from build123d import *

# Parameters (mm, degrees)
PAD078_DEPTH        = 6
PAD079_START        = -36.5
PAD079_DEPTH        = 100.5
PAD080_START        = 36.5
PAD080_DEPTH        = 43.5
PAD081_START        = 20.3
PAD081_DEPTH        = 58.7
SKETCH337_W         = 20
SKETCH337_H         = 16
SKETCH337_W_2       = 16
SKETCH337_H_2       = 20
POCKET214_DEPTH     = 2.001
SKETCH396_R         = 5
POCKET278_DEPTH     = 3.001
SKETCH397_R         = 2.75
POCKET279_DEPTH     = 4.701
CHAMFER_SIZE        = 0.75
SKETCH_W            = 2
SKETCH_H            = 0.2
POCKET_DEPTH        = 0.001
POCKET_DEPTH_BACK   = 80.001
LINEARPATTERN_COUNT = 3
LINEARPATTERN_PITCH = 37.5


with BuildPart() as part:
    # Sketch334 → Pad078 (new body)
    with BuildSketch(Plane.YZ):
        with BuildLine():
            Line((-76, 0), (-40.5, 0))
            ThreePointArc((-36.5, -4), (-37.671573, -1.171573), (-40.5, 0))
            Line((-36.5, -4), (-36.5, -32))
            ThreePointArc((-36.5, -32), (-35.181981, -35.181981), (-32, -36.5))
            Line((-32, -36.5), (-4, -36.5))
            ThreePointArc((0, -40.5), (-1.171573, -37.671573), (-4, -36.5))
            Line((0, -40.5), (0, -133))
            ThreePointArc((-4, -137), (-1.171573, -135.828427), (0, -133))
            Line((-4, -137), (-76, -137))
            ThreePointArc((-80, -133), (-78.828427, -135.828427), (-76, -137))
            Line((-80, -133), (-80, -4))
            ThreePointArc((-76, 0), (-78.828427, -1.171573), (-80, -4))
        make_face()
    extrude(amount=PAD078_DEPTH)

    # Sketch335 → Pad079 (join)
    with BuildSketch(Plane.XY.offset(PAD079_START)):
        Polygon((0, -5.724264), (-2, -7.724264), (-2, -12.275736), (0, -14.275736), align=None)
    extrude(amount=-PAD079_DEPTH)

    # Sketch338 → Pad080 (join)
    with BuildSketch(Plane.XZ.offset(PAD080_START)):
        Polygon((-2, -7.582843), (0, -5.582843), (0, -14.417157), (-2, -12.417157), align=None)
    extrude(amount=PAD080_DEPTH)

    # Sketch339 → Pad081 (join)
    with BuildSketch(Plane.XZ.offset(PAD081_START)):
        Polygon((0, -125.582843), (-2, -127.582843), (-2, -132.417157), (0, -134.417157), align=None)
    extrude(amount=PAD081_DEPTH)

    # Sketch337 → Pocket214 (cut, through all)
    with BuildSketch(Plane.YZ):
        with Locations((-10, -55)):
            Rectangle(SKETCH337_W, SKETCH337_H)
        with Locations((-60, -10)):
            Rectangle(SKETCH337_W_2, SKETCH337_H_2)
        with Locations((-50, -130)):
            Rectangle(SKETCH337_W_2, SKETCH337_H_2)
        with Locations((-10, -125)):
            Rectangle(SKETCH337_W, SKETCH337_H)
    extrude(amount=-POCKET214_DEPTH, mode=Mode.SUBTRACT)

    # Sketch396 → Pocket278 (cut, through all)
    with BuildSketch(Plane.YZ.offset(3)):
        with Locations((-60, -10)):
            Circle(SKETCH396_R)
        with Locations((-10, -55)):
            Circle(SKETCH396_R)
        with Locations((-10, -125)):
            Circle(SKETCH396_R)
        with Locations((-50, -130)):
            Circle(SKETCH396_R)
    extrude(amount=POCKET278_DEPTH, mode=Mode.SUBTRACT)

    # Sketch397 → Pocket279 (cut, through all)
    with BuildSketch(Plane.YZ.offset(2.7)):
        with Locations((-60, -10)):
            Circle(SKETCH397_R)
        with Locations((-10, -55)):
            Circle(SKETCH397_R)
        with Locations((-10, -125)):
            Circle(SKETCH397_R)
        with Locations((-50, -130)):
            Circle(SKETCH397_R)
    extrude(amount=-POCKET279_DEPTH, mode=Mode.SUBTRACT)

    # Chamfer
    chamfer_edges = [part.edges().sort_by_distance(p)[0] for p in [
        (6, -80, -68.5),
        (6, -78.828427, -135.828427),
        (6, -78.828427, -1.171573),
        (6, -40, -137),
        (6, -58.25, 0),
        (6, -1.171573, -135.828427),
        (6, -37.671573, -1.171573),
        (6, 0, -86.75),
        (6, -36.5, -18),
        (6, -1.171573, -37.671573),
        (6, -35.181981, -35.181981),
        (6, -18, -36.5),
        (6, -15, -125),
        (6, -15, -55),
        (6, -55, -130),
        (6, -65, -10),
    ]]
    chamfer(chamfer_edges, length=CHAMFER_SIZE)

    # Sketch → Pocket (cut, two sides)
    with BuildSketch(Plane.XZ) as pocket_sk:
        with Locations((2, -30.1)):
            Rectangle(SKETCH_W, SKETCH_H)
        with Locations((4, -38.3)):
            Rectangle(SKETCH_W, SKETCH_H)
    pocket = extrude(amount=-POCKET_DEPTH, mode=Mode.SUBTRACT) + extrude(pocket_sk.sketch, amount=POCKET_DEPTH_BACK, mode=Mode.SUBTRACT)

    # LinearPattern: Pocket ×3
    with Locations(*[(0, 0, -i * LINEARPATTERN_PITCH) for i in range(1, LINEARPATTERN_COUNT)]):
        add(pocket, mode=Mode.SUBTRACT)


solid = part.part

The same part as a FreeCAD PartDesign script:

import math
import FreeCAD as App
import Part
import Sketcher

V = App.Vector
Q = App.Units.Quantity


def edges_at(feature, points):
    """Names of the edges that pass closest to the given points."""
    edges = feature.Shape.Edges
    near = lambda p: min(range(len(edges)), key=lambda i: edges[i].distToShape(Part.Vertex(*p))[0])
    return sorted({f"Edge{near(p) + 1}" for p in points})


def add_polygon(sketch, points):
    """Adds a closed chain of lines whose ends are joined by coincident constraints."""
    first, n = sketch.GeometryCount, len(points)
    for a, b in zip(points, points[1:] + points[:1]):
        sketch.addGeometry(Part.LineSegment(App.Vector(*a, 0), App.Vector(*b, 0)), False)
    for i in range(n):
        sketch.addConstraint(Sketcher.Constraint("Coincident", first + i, 2, first + (i + 1) % n, 1))

doc = App.newDocument("Part")
body = doc.addObject("PartDesign::Body", "Body")

# Sketch on YZ plane
sketch1 = body.newObject("Sketcher::SketchObject", "Sketch")
sketch1.AttachmentSupport = (doc.getObject("YZ_Plane"), [""])
sketch1.MapMode = "FlatFace"
sketch1.addGeometry(Part.LineSegment(V(-40.5, 0, 0), V(-76, 0, 0)), False)
sketch1.addGeometry(Part.ArcOfCircle(Part.Circle(V(-76, -4, 0), V(0, 0, 1), 4), math.radians(90.000006), math.radians(179.999994)), False)
sketch1.addGeometry(Part.LineSegment(V(-80, -4, 0), V(-80, -133, 0)), False)
sketch1.addGeometry(Part.ArcOfCircle(Part.Circle(V(-76, -133, 0), V(0, 0, 1), 4), math.radians(-179.999994), math.radians(-90.000006)), False)
sketch1.addGeometry(Part.LineSegment(V(-76, -137, 0), V(-4, -137, 0)), False)
sketch1.addGeometry(Part.ArcOfCircle(Part.Circle(V(-4, -133, 0), V(0, 0, 1), 4), math.radians(-89.999994), math.radians(-0.000006)), False)
sketch1.addGeometry(Part.LineSegment(V(0, -133, 0), V(0, -40.5, 0)), False)
sketch1.addGeometry(Part.ArcOfCircle(Part.Circle(V(-4, -40.5, 0), V(0, 0, 1), 4), math.radians(0.000006), math.radians(89.999994)), False)
sketch1.addGeometry(Part.LineSegment(V(-4, -36.5, 0), V(-32, -36.5, 0)), False)
sketch1.addGeometry(Part.ArcOfCircle(Part.Circle(V(-32.000002, -32.000002, 0), V(0, 0, 1), 4.499998), math.radians(179.999979), math.radians(270.000021)), False)
sketch1.addGeometry(Part.LineSegment(V(-36.5, -32, 0), V(-36.5, -4, 0)), False)
sketch1.addGeometry(Part.ArcOfCircle(Part.Circle(V(-40.5, -4, 0), V(0, 0, 1), 4), math.radians(0.000006), math.radians(89.999994)), False)
sketch1.addConstraint(Sketcher.Constraint("Tangent", 0, 2, 1, 1))
sketch1.addConstraint(Sketcher.Constraint("Tangent", 1, 2, 2, 1))
sketch1.addConstraint(Sketcher.Constraint("Tangent", 2, 2, 3, 1))
sketch1.addConstraint(Sketcher.Constraint("Tangent", 3, 2, 4, 1))
sketch1.addConstraint(Sketcher.Constraint("Tangent", 4, 2, 5, 1))
sketch1.addConstraint(Sketcher.Constraint("Tangent", 5, 2, 6, 1))
sketch1.addConstraint(Sketcher.Constraint("Tangent", 6, 2, 7, 1))
sketch1.addConstraint(Sketcher.Constraint("Tangent", 7, 2, 8, 1))
sketch1.addConstraint(Sketcher.Constraint("Tangent", 8, 2, 9, 2))
sketch1.addConstraint(Sketcher.Constraint("Tangent", 9, 1, 10, 1))
sketch1.addConstraint(Sketcher.Constraint("Tangent", 10, 2, 11, 1))
sketch1.addConstraint(Sketcher.Constraint("Tangent", 11, 2, 0, 1))
sketch1.addConstraint(Sketcher.Constraint("Horizontal", 0))
sketch1.addConstraint(Sketcher.Constraint("Vertical", 2))
sketch1.addConstraint(Sketcher.Constraint("Horizontal", 4))
sketch1.addConstraint(Sketcher.Constraint("Vertical", 6))
sketch1.addConstraint(Sketcher.Constraint("Horizontal", 8))
sketch1.addConstraint(Sketcher.Constraint("Vertical", 10))
sketch1.addConstraint(Sketcher.Constraint("Equal", 1, 3))
sketch1.addConstraint(Sketcher.Constraint("Equal", 3, 5))
sketch1.addConstraint(Sketcher.Constraint("Equal", 5, 7))
sketch1.addConstraint(Sketcher.Constraint("Equal", 7, 11))
sketch1.addConstraint(Sketcher.Constraint("PointOnObject", 0, 2, -1))
sketch1.addConstraint(Sketcher.Constraint("PointOnObject", 5, 2, -2))
sketch1.addConstraint(Sketcher.Constraint("Equal", 8, 10))
sketch1.addConstraint(Sketcher.Constraint("Radius", 1, Q("4 mm")))
sketch1.addConstraint(Sketcher.Constraint("Radius", 9, Q("4.499998 mm")))
sketch1.addConstraint(Sketcher.Constraint("DistanceX", 4, 1, 4, 2, Q("72 mm")))
sketch1.addConstraint(Sketcher.Constraint("DistanceX", 8, 2, 8, 1, Q("28 mm")))
sketch1.addConstraint(Sketcher.Constraint("DistanceY", 2, 2, 2, 1, Q("129 mm")))
pad1 = body.newObject("PartDesign::Pad", "Pad")
pad1.Profile = sketch1
pad1.Length = 6

# Sketch on XY plane
sketch2 = body.newObject("Sketcher::SketchObject", "Sketch001")
sketch2.AttachmentSupport = (doc.getObject("XY_Plane"), [""])
sketch2.MapMode = "FlatFace"
sketch2.AttachmentOffset = App.Placement(V(0, 0, -36.5), App.Rotation())
add_polygon(sketch2, [(0, -5.724264), (-2, -7.724264), (-2, -12.275736), (0, -14.275736)])  # lines 0-3
sketch2.addConstraint(Sketcher.Constraint("Vertical", 1))
sketch2.addConstraint(Sketcher.Constraint("Vertical", 3))
sketch2.addConstraint(Sketcher.Constraint("PointOnObject", 2, 2, -2))
sketch2.addConstraint(Sketcher.Constraint("Perpendicular", 0, 2))
sketch2.addConstraint(Sketcher.Constraint("Equal", 0, 2))
sketch2.addConstraint(Sketcher.Constraint("DistanceX", 0, 2, -1, 1, Q("2 mm")))
sketch2.addConstraint(Sketcher.Constraint("DistanceY", 1, 2, 1, 1, Q("4.551472 mm")))
sketch2.addConstraint(Sketcher.Constraint("DistanceY", 0, 2, -1, 1, Q("7.724264 mm")))
pad2 = body.newObject("PartDesign::Pad", "Pad001")
pad2.Profile = sketch2
pad2.Length = 100.5
pad2.Reversed = True

# Sketch on XZ plane
sketch3 = body.newObject("Sketcher::SketchObject", "Sketch002")
sketch3.AttachmentSupport = (doc.getObject("XZ_Plane"), [""])
sketch3.MapMode = "FlatFace"
sketch3.AttachmentOffset = App.Placement(V(0, 0, 36.5), App.Rotation())
add_polygon(sketch3, [(0, -5.582843), (-2, -7.582843), (-2, -12.417157), (0, -14.417157)])  # lines 0-3
sketch3.addConstraint(Sketcher.Constraint("Vertical", 1))
sketch3.addConstraint(Sketcher.Constraint("Vertical", 3))
sketch3.addConstraint(Sketcher.Constraint("PointOnObject", 2, 2, -2))
sketch3.addConstraint(Sketcher.Constraint("Perpendicular", 0, 2))
sketch3.addConstraint(Sketcher.Constraint("Equal", 0, 2))
sketch3.addConstraint(Sketcher.Constraint("DistanceX", 0, 2, -1, 1, Q("2 mm")))
sketch3.addConstraint(Sketcher.Constraint("DistanceY", 1, 2, 1, 1, Q("4.834314 mm")))
sketch3.addConstraint(Sketcher.Constraint("DistanceY", 0, 2, -1, 1, Q("7.582843 mm")))
pad3 = body.newObject("PartDesign::Pad", "Pad002")
pad3.Profile = sketch3
pad3.Length = 43.5

# Sketch on XZ plane
sketch4 = body.newObject("Sketcher::SketchObject", "Sketch003")
sketch4.AttachmentSupport = (doc.getObject("XZ_Plane"), [""])
sketch4.MapMode = "FlatFace"
sketch4.AttachmentOffset = App.Placement(V(0, 0, 20.3), App.Rotation())
add_polygon(sketch4, [(0, -125.582843), (-2, -127.582843), (-2, -132.417157), (0, -134.417157)])  # lines 0-3
sketch4.addConstraint(Sketcher.Constraint("Vertical", 1))
sketch4.addConstraint(Sketcher.Constraint("Vertical", 3))
sketch4.addConstraint(Sketcher.Constraint("PointOnObject", 2, 2, -2))
sketch4.addConstraint(Sketcher.Constraint("Perpendicular", 0, 2))
sketch4.addConstraint(Sketcher.Constraint("Equal", 0, 2))
sketch4.addConstraint(Sketcher.Constraint("DistanceX", 0, 2, -1, 1, Q("2 mm")))
sketch4.addConstraint(Sketcher.Constraint("DistanceY", 1, 2, 1, 1, Q("4.834314 mm")))
sketch4.addConstraint(Sketcher.Constraint("DistanceY", 0, 2, -1, 1, Q("127.582843 mm")))
pad4 = body.newObject("PartDesign::Pad", "Pad003")
pad4.Profile = sketch4
pad4.Length = 58.7

# Sketch on YZ plane
sketch5 = body.newObject("Sketcher::SketchObject", "Sketch004")
sketch5.AttachmentSupport = (doc.getObject("YZ_Plane"), [""])
sketch5.MapMode = "FlatFace"
add_polygon(sketch5, [(-20, -47), (-20, -63), (0, -63), (0, -47)])  # lines 0-3
add_polygon(sketch5, [(-68, 0), (-68, -20), (-52, -20), (-52, 0)])  # lines 4-7
add_polygon(sketch5, [(-58, -120), (-58, -140), (-42, -140), (-42, -120)])  # lines 8-11
add_polygon(sketch5, [(-20, -117), (-20, -133), (0, -133), (0, -117)])  # lines 12-15
sketch5.addConstraint(Sketcher.Constraint("Vertical", 0))
sketch5.addConstraint(Sketcher.Constraint("Horizontal", 1))
sketch5.addConstraint(Sketcher.Constraint("Vertical", 2))
sketch5.addConstraint(Sketcher.Constraint("Horizontal", 3))
sketch5.addConstraint(Sketcher.Constraint("Vertical", 4))
sketch5.addConstraint(Sketcher.Constraint("Horizontal", 5))
sketch5.addConstraint(Sketcher.Constraint("Vertical", 6))
sketch5.addConstraint(Sketcher.Constraint("Horizontal", 7))
sketch5.addConstraint(Sketcher.Constraint("Vertical", 8))
sketch5.addConstraint(Sketcher.Constraint("Horizontal", 9))
sketch5.addConstraint(Sketcher.Constraint("Vertical", 10))
sketch5.addConstraint(Sketcher.Constraint("Horizontal", 11))
sketch5.addConstraint(Sketcher.Constraint("Vertical", 12))
sketch5.addConstraint(Sketcher.Constraint("Horizontal", 13))
sketch5.addConstraint(Sketcher.Constraint("Vertical", 14))
sketch5.addConstraint(Sketcher.Constraint("Horizontal", 15))
sketch5.addConstraint(Sketcher.Constraint("PointOnObject", 1, 2, -2))
sketch5.addConstraint(Sketcher.Constraint("PointOnObject", 6, 2, -1))
sketch5.addConstraint(Sketcher.Constraint("PointOnObject", 13, 2, -2))
sketch5.addConstraint(Sketcher.Constraint("Vertical", 3, 2, 12, 2))
sketch5.addConstraint(Sketcher.Constraint("Equal", 7, 9))
sketch5.addConstraint(Sketcher.Constraint("Equal", 11, 0))
sketch5.addConstraint(Sketcher.Constraint("Equal", 15, 4))
sketch5.addConstraint(Sketcher.Constraint("Equal", 6, 8))
sketch5.addConstraint(Sketcher.Constraint("Equal", 2, 12))
sketch5.addConstraint(Sketcher.Constraint("DistanceX", 1, 1, 1, 2, Q("20 mm")))
sketch5.addConstraint(Sketcher.Constraint("DistanceX", 5, 1, 5, 2, Q("16 mm")))
sketch5.addConstraint(Sketcher.Constraint("DistanceY", 0, 2, -1, 1, Q("63 mm")))
sketch5.addConstraint(Sketcher.Constraint("DistanceX", 4, 2, -1, 1, Q("68 mm")))
sketch5.addConstraint(Sketcher.Constraint("DistanceX", 8, 2, -1, 1, Q("58 mm")))
sketch5.addConstraint(Sketcher.Constraint("DistanceY", 8, 2, -1, 1, Q("140 mm")))
sketch5.addConstraint(Sketcher.Constraint("DistanceY", 12, 2, -1, 1, Q("133 mm")))
pocket1 = body.newObject("PartDesign::Pocket", "Pocket")
pocket1.Profile = sketch5
pocket1.Type = "ThroughAll"

# Sketch on YZ plane
sketch6 = body.newObject("Sketcher::SketchObject", "Sketch005")
sketch6.AttachmentSupport = (doc.getObject("YZ_Plane"), [""])
sketch6.MapMode = "FlatFace"
sketch6.AttachmentOffset = App.Placement(V(0, 0, 3), App.Rotation())
sketch6.addGeometry(Part.Circle(V(-60, -10, 0), V(0, 0, 1), 5), False)
sketch6.addGeometry(Part.Circle(V(-10, -55, 0), V(0, 0, 1), 5), False)
sketch6.addGeometry(Part.Circle(V(-10, -125, 0), V(0, 0, 1), 5), False)
sketch6.addGeometry(Part.Circle(V(-50, -130, 0), V(0, 0, 1), 5), False)
sketch6.addConstraint(Sketcher.Constraint("Equal", 0, 1))
sketch6.addConstraint(Sketcher.Constraint("Equal", 1, 2))
sketch6.addConstraint(Sketcher.Constraint("Equal", 2, 3))
sketch6.addConstraint(Sketcher.Constraint("Vertical", 1, 3, 2, 3))
sketch6.addConstraint(Sketcher.Constraint("Diameter", 0, Q("10 mm")))
sketch6.addConstraint(Sketcher.Constraint("DistanceX", 0, 3, -1, 1, Q("60 mm")))
sketch6.addConstraint(Sketcher.Constraint("DistanceY", 0, 3, -1, 1, Q("10 mm")))
sketch6.addConstraint(Sketcher.Constraint("DistanceX", 1, 3, -1, 1, Q("10 mm")))
sketch6.addConstraint(Sketcher.Constraint("DistanceY", 1, 3, -1, 1, Q("55 mm")))
sketch6.addConstraint(Sketcher.Constraint("DistanceY", 2, 3, -1, 1, Q("125 mm")))
sketch6.addConstraint(Sketcher.Constraint("DistanceX", 3, 3, -1, 1, Q("50 mm")))
sketch6.addConstraint(Sketcher.Constraint("DistanceY", 3, 3, -1, 1, Q("130 mm")))
pocket2 = body.newObject("PartDesign::Pocket", "Pocket001")
pocket2.Profile = sketch6
pocket2.Type = "ThroughAll"
pocket2.Reversed = True

# Sketch on YZ plane
sketch7 = body.newObject("Sketcher::SketchObject", "Sketch006")
sketch7.AttachmentSupport = (doc.getObject("YZ_Plane"), [""])
sketch7.MapMode = "FlatFace"
sketch7.AttachmentOffset = App.Placement(V(0, 0, 2.7), App.Rotation())
sketch7.addGeometry(Part.Circle(V(-60, -10, 0), V(0, 0, 1), 2.75), False)
sketch7.addGeometry(Part.Circle(V(-10, -55, 0), V(0, 0, 1), 2.75), False)
sketch7.addGeometry(Part.Circle(V(-10, -125, 0), V(0, 0, 1), 2.75), False)
sketch7.addGeometry(Part.Circle(V(-50, -130, 0), V(0, 0, 1), 2.75), False)
sketch7.addConstraint(Sketcher.Constraint("Equal", 0, 1))
sketch7.addConstraint(Sketcher.Constraint("Equal", 1, 2))
sketch7.addConstraint(Sketcher.Constraint("Equal", 2, 3))
sketch7.addConstraint(Sketcher.Constraint("Vertical", 1, 3, 2, 3))
sketch7.addConstraint(Sketcher.Constraint("Diameter", 0, Q("5.5 mm")))
sketch7.addConstraint(Sketcher.Constraint("DistanceX", 0, 3, -1, 1, Q("60 mm")))
sketch7.addConstraint(Sketcher.Constraint("DistanceY", 0, 3, -1, 1, Q("10 mm")))
sketch7.addConstraint(Sketcher.Constraint("DistanceX", 1, 3, -1, 1, Q("10 mm")))
sketch7.addConstraint(Sketcher.Constraint("DistanceY", 1, 3, -1, 1, Q("55 mm")))
sketch7.addConstraint(Sketcher.Constraint("DistanceY", 2, 3, -1, 1, Q("125 mm")))
sketch7.addConstraint(Sketcher.Constraint("DistanceX", 3, 3, -1, 1, Q("50 mm")))
sketch7.addConstraint(Sketcher.Constraint("DistanceY", 3, 3, -1, 1, Q("130 mm")))
pocket3 = body.newObject("PartDesign::Pocket", "Pocket002")
pocket3.Profile = sketch7
pocket3.Type = "ThroughAll"
doc.recompute()

chamfer = body.newObject("PartDesign::Chamfer", "Chamfer")
chamfer.Base = (pocket3, edges_at(pocket3, [
    (6, -80, -68.5),
    (6, -78.828, -135.828),
    (6, -78.828, -1.172),
    (6, -40, -137),
    (6, -58.25, 0),
    (6, -1.172, -135.828),
    (6, -37.672, -1.172),
    (6, 0, -86.75),
    (6, -36.5, -18),
    (6, -1.172, -37.672),
    (6, -35.182, -35.182),
    (6, -18, -36.5),
    (6, -15, -125),
    (6, -15, -55),
    (6, -55, -130),
    (6, -65, -10),
]))
chamfer.Size = 0.75

# Sketch on XZ plane
sketch8 = body.newObject("Sketcher::SketchObject", "Sketch007")
sketch8.AttachmentSupport = (doc.getObject("XZ_Plane"), [""])
sketch8.MapMode = "FlatFace"
add_polygon(sketch8, [(1, -30), (1, -30.2), (3, -30.2), (3, -30)])  # lines 0-3
add_polygon(sketch8, [(3, -38.2), (3, -38.4), (5, -38.4), (5, -38.2)])  # lines 4-7
sketch8.addConstraint(Sketcher.Constraint("Vertical", 0))
sketch8.addConstraint(Sketcher.Constraint("Horizontal", 1))
sketch8.addConstraint(Sketcher.Constraint("Vertical", 2))
sketch8.addConstraint(Sketcher.Constraint("Horizontal", 3))
sketch8.addConstraint(Sketcher.Constraint("Vertical", 4))
sketch8.addConstraint(Sketcher.Constraint("Horizontal", 5))
sketch8.addConstraint(Sketcher.Constraint("Vertical", 6))
sketch8.addConstraint(Sketcher.Constraint("Horizontal", 7))
sketch8.addConstraint(Sketcher.Constraint("Vertical", 2, 2, 4, 2))
sketch8.addConstraint(Sketcher.Constraint("Equal", 3, 5))
sketch8.addConstraint(Sketcher.Constraint("Equal", 2, 4))
sketch8.addConstraint(Sketcher.Constraint("DistanceX", 1, 1, 1, 2, Q("2 mm")))
sketch8.addConstraint(Sketcher.Constraint("DistanceY", 0, 2, 0, 1, Q("0.2 mm")))
sketch8.addConstraint(Sketcher.Constraint("DistanceX", -1, 1, 0, 2, Q("1 mm")))
sketch8.addConstraint(Sketcher.Constraint("DistanceY", 2, 2, -1, 1, Q("30 mm")))
sketch8.addConstraint(Sketcher.Constraint("DistanceY", 6, 2, 1, 2, Q("8 mm")))
pocket4 = body.newObject("PartDesign::Pocket", "Pocket003")
pocket4.Profile = sketch8
pocket4.Type = "ThroughAll"
pocket4.Midplane = True
doc.recompute()

linearpattern = body.newObject("PartDesign::LinearPattern", "LinearPattern")
linearpattern.Originals = [pocket4]
linearpattern.Direction = (doc.getObject("Z_Axis"), [""])
linearpattern.Mode = "offset"
linearpattern.Offset = 37.5
linearpattern.Occurrences = 3
linearpattern.Reversed = True
body.Tip = linearpattern

doc.recompute()
